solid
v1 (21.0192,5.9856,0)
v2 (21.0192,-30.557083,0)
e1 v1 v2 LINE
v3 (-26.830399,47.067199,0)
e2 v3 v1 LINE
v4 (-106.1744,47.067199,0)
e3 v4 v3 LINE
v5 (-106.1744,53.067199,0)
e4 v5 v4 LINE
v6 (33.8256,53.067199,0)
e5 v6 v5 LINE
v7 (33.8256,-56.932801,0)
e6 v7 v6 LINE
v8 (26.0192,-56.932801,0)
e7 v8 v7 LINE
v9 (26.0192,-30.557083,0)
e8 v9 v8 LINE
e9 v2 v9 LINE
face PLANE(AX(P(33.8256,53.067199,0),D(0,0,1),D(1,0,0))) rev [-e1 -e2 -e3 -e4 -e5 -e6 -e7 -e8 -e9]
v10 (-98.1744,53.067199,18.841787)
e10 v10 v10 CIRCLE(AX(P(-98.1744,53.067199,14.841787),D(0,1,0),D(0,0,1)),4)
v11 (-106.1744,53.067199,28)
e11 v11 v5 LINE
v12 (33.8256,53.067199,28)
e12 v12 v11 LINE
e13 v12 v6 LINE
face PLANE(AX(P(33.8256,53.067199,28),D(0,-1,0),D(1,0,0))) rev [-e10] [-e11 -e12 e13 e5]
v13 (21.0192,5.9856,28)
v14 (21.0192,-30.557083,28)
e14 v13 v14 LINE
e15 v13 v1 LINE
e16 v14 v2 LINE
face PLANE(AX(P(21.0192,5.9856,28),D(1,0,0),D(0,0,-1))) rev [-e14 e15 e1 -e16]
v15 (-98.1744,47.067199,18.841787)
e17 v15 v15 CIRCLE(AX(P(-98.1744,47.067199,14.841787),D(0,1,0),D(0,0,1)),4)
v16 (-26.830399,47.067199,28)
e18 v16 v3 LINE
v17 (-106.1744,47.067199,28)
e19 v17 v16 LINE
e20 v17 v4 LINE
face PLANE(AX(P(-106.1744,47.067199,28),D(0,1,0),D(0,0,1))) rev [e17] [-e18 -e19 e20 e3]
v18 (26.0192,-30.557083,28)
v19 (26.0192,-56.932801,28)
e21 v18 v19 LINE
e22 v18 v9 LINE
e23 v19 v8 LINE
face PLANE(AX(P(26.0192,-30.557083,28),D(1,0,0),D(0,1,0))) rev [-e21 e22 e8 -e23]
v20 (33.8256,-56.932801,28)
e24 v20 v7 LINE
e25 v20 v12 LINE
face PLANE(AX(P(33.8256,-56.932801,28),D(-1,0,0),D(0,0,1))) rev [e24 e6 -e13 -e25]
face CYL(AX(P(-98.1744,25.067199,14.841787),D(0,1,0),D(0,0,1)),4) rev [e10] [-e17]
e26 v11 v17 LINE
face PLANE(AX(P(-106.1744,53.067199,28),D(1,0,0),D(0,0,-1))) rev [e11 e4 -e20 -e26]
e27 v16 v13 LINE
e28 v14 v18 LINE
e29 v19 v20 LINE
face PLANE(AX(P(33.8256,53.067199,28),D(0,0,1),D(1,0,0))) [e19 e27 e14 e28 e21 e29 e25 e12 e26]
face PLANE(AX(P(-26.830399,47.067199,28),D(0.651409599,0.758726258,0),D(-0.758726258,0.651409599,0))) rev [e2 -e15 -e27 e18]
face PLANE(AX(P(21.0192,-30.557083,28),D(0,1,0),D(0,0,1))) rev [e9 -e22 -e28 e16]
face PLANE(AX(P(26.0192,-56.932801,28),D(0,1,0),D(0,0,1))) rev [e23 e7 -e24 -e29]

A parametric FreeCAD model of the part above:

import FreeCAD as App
import Part
import Sketcher

doc = App.newDocument("Part")
body = doc.addObject("PartDesign::Body", "Body")

# Sketch on XY plane
sketch1 = body.newObject("Sketcher::SketchObject", "Sketch")
sketch1.AttachmentSupport = (doc.getObject("XY_Plane"), [""])
sketch1.MapMode = "FlatFace"
sketch1.addGeometry(Part.LineSegment(App.Vector(26, -57, 0), App.Vector(34, -57, 0)), False)
sketch1.addGeometry(Part.LineSegment(App.Vector(34, -57, 0), App.Vector(34, 53, 0)), False)
sketch1.addGeometry(Part.LineSegment(App.Vector(34, 53, 0), App.Vector(-106, 53, 0)), False)
sketch1.addGeometry(Part.LineSegment(App.Vector(-106, 53, 0), App.Vector(-106, 47, 0)), False)
sketch1.addGeometry(Part.LineSegment(App.Vector(-106, 47, 0), App.Vector(-27, 47, 0)), False)
sketch1.addGeometry(Part.LineSegment(App.Vector(-27, 47, 0), App.Vector(21, 6, 0)), False)
sketch1.addGeometry(Part.LineSegment(App.Vector(21, 6, 0), App.Vector(21, -31, 0)), False)
sketch1.addGeometry(Part.LineSegment(App.Vector(21, -31, 0), App.Vector(26, -31, 0)), False)
sketch1.addGeometry(Part.LineSegment(App.Vector(26, -31, 0), App.Vector(26, -57, 0)), False)
sketch1.addConstraint(Sketcher.Constraint("Coincident", 0, 2, 1, 1))
sketch1.addConstraint(Sketcher.Constraint("Coincident", 1, 2, 2, 1))
sketch1.addConstraint(Sketcher.Constraint("Coincident", 2, 2, 3, 1))
sketch1.addConstraint(Sketcher.Constraint("Coincident", 3, 2, 4, 1))
sketch1.addConstraint(Sketcher.Constraint("Coincident", 4, 2, 5, 1))
sketch1.addConstraint(Sketcher.Constraint("Coincident", 5, 2, 6, 1))
sketch1.addConstraint(Sketcher.Constraint("Coincident", 6, 2, 7, 1))
sketch1.addConstraint(Sketcher.Constraint("Coincident", 7, 2, 8, 1))
sketch1.addConstraint(Sketcher.Constraint("Coincident", 8, 2, 0, 1))
sketch1.addConstraint(Sketcher.Constraint("Horizontal", 0))
sketch1.addConstraint(Sketcher.Constraint("Vertical", 1))
sketch1.addConstraint(Sketcher.Constraint("Horizontal", 2))
sketch1.addConstraint(Sketcher.Constraint("Vertical", 3))
sketch1.addConstraint(Sketcher.Constraint("Horizontal", 4))
sketch1.addConstraint(Sketcher.Constraint("Vertical", 6))
sketch1.addConstraint(Sketcher.Constraint("Horizontal", 7))
sketch1.addConstraint(Sketcher.Constraint("Vertical", 8))
sketch1.addConstraint(Sketcher.Constraint("DistanceX", 2, 2, 2, 1, 140.0))
sketch1.addConstraint(Sketcher.Constraint("DistanceX", 7, 1, 7, 2, 5.0))
sketch1.addConstraint(Sketcher.Constraint("DistanceY", 1, 1, 1, 2, 110.0))
sketch1.addConstraint(Sketcher.Constraint("DistanceY", 3, 2, 3, 1, 6.0))
sketch1.addConstraint(Sketcher.Constraint("DistanceX", 4, 1, 4, 2, 79.344001))
sketch1.addConstraint(Sketcher.Constraint("DistanceX", 0, 1, 0, 2, 7.8064))
sketch1.addConstraint(Sketcher.Constraint("DistanceX", -1, 1, 0, 2, 33.8256))
sketch1.addConstraint(Sketcher.Constraint("DistanceY", 0, 2, -1, 1, 56.932801))
sketch1.addConstraint(Sketcher.Constraint("DistanceY", -1, 1, 5, 2, 5.9856))
sketch1.addConstraint(Sketcher.Constraint("DistanceY", 6, 2, 6, 1, 36.542683))
pad1 = body.newObject("PartDesign::Pad", "Pad")
pad1.Profile = sketch1
pad1.Length = 28

# Sketch on XZ plane
sketch2 = body.newObject("Sketcher::SketchObject", "Sketch001")
sketch2.AttachmentSupport = (doc.getObject("XZ_Plane"), [""])
sketch2.MapMode = "FlatFace"
sketch2.AttachmentOffset = App.Placement(App.Vector(0, 0, -53.067199), App.Rotation())
sketch2.addGeometry(Part.Circle(App.Vector(-98.2, 14.8, 0), App.Vector(0, 0, 1), 4), False)
sketch2.addConstraint(Sketcher.Constraint("Diameter", 0, 8.0))
sketch2.addConstraint(Sketcher.Constraint("DistanceX", 0, 3, -1, 1, 98.1744))
sketch2.addConstraint(Sketcher.Constraint("DistanceY", -1, 1, 0, 3, 14.841787))
pocket1 = body.newObject("PartDesign::Pocket", "Pocket")
pocket1.Profile = sketch2
pocket1.Length = 28
pocket1.Reversed = True

doc.recompute()
